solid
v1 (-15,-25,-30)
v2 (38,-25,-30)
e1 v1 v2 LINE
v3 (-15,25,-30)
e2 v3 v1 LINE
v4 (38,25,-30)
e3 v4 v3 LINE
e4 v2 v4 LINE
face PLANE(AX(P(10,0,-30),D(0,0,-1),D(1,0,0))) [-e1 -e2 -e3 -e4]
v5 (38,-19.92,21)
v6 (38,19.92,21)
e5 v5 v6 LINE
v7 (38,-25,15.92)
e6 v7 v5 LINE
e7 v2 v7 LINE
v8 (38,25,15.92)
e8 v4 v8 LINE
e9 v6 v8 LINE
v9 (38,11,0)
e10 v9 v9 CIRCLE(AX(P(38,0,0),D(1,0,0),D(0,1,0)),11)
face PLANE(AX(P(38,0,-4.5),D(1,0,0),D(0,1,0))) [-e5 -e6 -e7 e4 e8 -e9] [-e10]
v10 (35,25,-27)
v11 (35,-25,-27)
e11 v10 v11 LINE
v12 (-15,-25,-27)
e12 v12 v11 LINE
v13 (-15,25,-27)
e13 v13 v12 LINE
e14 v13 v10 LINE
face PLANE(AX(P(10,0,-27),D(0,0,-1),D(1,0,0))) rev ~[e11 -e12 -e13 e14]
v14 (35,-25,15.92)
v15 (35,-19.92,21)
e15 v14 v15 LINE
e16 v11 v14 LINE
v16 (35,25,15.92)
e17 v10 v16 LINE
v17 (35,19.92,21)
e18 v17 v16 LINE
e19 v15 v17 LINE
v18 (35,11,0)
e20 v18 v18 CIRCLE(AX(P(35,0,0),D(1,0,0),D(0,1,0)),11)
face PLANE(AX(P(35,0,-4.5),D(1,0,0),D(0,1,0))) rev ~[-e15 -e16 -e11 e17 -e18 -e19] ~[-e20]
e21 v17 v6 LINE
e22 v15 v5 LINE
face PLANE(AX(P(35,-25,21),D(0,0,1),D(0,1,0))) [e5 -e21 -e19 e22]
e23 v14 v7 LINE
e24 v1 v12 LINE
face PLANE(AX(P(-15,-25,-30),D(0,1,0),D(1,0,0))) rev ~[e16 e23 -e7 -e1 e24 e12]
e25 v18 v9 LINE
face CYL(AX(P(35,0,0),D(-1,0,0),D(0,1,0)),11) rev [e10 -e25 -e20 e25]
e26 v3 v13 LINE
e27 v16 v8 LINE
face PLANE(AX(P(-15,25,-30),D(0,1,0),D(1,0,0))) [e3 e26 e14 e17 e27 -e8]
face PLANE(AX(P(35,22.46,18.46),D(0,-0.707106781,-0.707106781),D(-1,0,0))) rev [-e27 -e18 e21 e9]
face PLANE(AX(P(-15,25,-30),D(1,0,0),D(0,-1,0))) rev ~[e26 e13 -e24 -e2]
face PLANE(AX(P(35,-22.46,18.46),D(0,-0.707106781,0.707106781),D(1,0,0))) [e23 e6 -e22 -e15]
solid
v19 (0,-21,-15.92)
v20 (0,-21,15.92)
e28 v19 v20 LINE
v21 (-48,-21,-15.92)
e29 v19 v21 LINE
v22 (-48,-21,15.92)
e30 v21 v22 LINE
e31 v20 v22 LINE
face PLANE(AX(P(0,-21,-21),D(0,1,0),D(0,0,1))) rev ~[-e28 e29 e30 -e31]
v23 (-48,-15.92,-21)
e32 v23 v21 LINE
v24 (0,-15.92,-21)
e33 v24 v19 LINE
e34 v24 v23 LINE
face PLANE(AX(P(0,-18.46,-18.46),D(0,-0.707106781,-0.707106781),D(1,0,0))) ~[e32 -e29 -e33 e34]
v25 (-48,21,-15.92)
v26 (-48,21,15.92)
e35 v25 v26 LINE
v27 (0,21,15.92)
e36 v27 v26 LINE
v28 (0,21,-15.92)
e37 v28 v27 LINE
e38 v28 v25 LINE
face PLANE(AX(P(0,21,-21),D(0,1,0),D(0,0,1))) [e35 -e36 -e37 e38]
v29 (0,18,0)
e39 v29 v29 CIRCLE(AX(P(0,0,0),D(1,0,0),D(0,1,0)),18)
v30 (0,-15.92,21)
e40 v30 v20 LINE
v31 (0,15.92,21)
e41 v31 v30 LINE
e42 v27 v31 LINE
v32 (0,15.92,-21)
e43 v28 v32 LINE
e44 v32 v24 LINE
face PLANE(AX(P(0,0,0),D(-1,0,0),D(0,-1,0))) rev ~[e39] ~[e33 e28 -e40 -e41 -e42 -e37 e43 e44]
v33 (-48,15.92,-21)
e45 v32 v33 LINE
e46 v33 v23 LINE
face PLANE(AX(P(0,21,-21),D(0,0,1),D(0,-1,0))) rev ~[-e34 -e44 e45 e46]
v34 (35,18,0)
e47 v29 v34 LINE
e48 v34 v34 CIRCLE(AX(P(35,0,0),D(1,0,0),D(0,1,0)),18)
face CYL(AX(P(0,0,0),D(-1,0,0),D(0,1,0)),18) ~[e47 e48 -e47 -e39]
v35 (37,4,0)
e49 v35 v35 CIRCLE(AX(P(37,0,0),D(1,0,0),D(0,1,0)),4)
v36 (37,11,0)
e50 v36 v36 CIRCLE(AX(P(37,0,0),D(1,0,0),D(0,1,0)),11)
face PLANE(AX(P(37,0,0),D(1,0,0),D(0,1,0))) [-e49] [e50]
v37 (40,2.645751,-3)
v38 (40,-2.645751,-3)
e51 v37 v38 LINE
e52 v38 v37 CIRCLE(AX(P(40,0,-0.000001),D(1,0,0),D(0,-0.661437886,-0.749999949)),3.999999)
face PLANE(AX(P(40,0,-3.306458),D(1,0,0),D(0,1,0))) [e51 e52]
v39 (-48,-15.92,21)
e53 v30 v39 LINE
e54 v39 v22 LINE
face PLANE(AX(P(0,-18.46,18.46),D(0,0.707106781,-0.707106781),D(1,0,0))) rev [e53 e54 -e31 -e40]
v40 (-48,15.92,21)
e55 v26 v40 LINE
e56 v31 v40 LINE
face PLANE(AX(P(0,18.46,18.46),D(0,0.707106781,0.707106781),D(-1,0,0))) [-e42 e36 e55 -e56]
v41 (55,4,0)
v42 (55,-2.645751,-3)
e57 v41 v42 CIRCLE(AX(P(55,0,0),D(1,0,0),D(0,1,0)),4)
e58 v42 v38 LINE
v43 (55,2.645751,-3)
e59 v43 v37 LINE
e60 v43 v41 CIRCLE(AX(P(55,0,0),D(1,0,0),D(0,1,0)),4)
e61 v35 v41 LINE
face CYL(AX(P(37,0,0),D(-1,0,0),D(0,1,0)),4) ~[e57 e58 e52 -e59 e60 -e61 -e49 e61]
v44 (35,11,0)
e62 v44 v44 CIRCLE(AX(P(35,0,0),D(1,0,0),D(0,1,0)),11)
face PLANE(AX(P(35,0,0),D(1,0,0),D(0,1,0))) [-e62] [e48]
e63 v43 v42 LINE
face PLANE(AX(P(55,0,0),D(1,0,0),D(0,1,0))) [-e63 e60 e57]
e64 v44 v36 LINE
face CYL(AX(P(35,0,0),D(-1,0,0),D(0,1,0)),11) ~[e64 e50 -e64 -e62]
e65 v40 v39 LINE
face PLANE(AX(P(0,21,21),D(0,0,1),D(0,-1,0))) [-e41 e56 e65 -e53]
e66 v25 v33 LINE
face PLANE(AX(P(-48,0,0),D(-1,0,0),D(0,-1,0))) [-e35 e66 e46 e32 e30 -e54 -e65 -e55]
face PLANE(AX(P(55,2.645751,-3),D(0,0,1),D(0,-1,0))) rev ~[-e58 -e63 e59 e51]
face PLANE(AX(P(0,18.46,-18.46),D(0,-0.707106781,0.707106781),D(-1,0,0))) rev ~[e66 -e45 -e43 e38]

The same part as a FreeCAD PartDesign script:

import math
import FreeCAD as App
import Part
import Sketcher

V = App.Vector


def edges_at(feature, points):
    """Names of the edges that pass closest to the given points."""
    edges = feature.Shape.Edges
    near = lambda p: min(range(len(edges)), key=lambda i: edges[i].distToShape(Part.Vertex(*p))[0])
    return sorted({f"Edge{near(p) + 1}" for p in points})

doc = App.newDocument("Part")
params = doc.addObject("Spreadsheet::Sheet", "Params")
for row, (alias, value) in enumerate([
    ("sketch1_diameter", "36 mm"),
    ("pad1_length", "35 mm"),
    ("sketch2_width", "42 mm"),
    ("pad2_length", "48 mm"),
    ("chamfer_size", "5.08 mm"),
    ("sketch3_diameter", "22 mm"),
    ("pad3_length", "2 mm"),
    ("sketch4_diameter", "8 mm"),
    ("pad4_length", "18 mm"),
    ("sketch5_radius", "3.999999 mm"),
    ("pocket1_length", "15 mm"),
    ("sketch6_diameter", "22 mm"),
    ("sketch6_width", "50 mm"),
    ("sketch6_height", "51 mm"),
    ("pad5_length", "3 mm"),
    ("chamfer2_size", "5.08 mm"),
    ("sketch7_width", "50 mm"),
    ("pad6_length", "3 mm"),
], start=1):
    params.set(f"A{row}", alias)
    params.set(f"B{row}", "=" + value)
    params.setAlias(f"B{row}", alias)

body = doc.addObject("PartDesign::Body", "Body")

# Sketch on YZ plane
sketch1 = body.newObject("Sketcher::SketchObject", "Sketch")
sketch1.AttachmentSupport = (doc.getObject("YZ_Plane"), [""])
sketch1.MapMode = "FlatFace"
sketch1.addGeometry(Part.Circle(V(0, 0, 0), V(0, 0, 1), 18), False)
sketch1.addConstraint([
    Sketcher.Constraint("Coincident", 0, 3, -1, 1),
    Sketcher.Constraint("Diameter", 0, 36.0),
])
sketch1.setExpression("Constraints[1]", "Params.sketch1_diameter")
pad1 = body.newObject("PartDesign::Pad", "Pad")
pad1.Profile = sketch1
pad1.setExpression("Length", "Params.pad1_length")

# Sketch on YZ plane
sketch2 = body.newObject("Sketcher::SketchObject", "Sketch001")
sketch2.AttachmentSupport = (doc.getObject("YZ_Plane"), [""])
sketch2.MapMode = "FlatFace"
sketch2.addGeometry([
    Part.LineSegment(V(21, 21, 0), V(21, -21, 0)),
    Part.LineSegment(V(21, -21, 0), V(-21, -21, 0)),
    Part.LineSegment(V(-21, -21, 0), V(-21, 21, 0)),
    Part.LineSegment(V(-21, 21, 0), V(21, 21, 0)),
], False)
sketch2.addConstraint([
    Sketcher.Constraint("Coincident", 0, 2, 1, 1),
    Sketcher.Constraint("Coincident", 1, 2, 2, 1),
    Sketcher.Constraint("Coincident", 2, 2, 3, 1),
    Sketcher.Constraint("Coincident", 3, 2, 0, 1),
    Sketcher.Constraint("Vertical", 0),
    Sketcher.Constraint("Horizontal", 1),
    Sketcher.Constraint("Vertical", 2),
    Sketcher.Constraint("Horizontal", 3),
    Sketcher.Constraint("Symmetric", 0, 2, 2, 2, -1, 1),
    Sketcher.Constraint("Equal", 3, 0),
    Sketcher.Constraint("DistanceX", 1, 2, 1, 1, 42.0),
])
sketch2.setExpression("Constraints[10]", "Params.sketch2_width")
pad2 = body.newObject("PartDesign::Pad", "Pad001")
pad2.Profile = sketch2
pad2.setExpression("Length", "Params.pad2_length")
pad2.Reversed = True
doc.recompute()

chamfer = body.newObject("PartDesign::Chamfer", "Chamfer")
chamfer.Base = (pad2, edges_at(pad2, [
    (-24, -21, 21),
    (-24, 21, 21),
    (-24, 21, -21),
    (-24, -21, -21),
]))
chamfer.setExpression("Size", "Params.chamfer_size")

# Sketch on YZ plane
sketch3 = body.newObject("Sketcher::SketchObject", "Sketch002")
sketch3.AttachmentSupport = (doc.getObject("YZ_Plane"), [""])
sketch3.MapMode = "FlatFace"
sketch3.AttachmentOffset = App.Placement(V(0, 0, 35), App.Rotation())
sketch3.addGeometry(Part.Circle(V(0, 0, 0), V(0, 0, 1), 11), False)
sketch3.addConstraint([
    Sketcher.Constraint("Coincident", 0, 3, -1, 1),
    Sketcher.Constraint("Diameter", 0, 22.0),
])
sketch3.setExpression("Constraints[1]", "Params.sketch3_diameter")
pad3 = body.newObject("PartDesign::Pad", "Pad002")
pad3.Profile = sketch3
pad3.setExpression("Length", "Params.pad3_length")

# Sketch on YZ plane
sketch4 = body.newObject("Sketcher::SketchObject", "Sketch003")
sketch4.AttachmentSupport = (doc.getObject("YZ_Plane"), [""])
sketch4.MapMode = "FlatFace"
sketch4.AttachmentOffset = App.Placement(V(0, 0, 37), App.Rotation())
sketch4.addGeometry(Part.Circle(V(0, 0, 0), V(0, 0, 1), 4), False)
sketch4.addConstraint([
    Sketcher.Constraint("Coincident", 0, 3, -1, 1),
    Sketcher.Constraint("Diameter", 0, 8.0),
])
sketch4.setExpression("Constraints[1]", "Params.sketch4_diameter")
pad4 = body.newObject("PartDesign::Pad", "Pad003")
pad4.Profile = sketch4
pad4.setExpression("Length", "Params.pad4_length")

# Sketch on YZ plane
sketch5 = body.newObject("Sketcher::SketchObject", "Sketch004")
sketch5.AttachmentSupport = (doc.getObject("YZ_Plane"), [""])
sketch5.MapMode = "FlatFace"
sketch5.AttachmentOffset = App.Placement(V(0, 0, 55), App.Rotation())
sketch5.addGeometry([
    Part.LineSegment(V(2.6, -3, 0), V(-2.6, -3, 0)),
    Part.ArcOfCircle(Part.Circle(V(0, 0, 0), V(0, 0, 1), 4), math.radians(-131), math.radians(-49)),
], False)
sketch5.addConstraint([
    Sketcher.Constraint("Coincident", 0, 1, 1, 2),
    Sketcher.Constraint("Coincident", 1, 1, 0, 2),
    Sketcher.Constraint("Horizontal", 0),
    Sketcher.Constraint("Coincident", 1, 3, -1, 1),
    Sketcher.Constraint("Radius", 1, 3.999999),
    Sketcher.Constraint("DistanceY", 0, 1, -1, 1, 3.0),
])
sketch5.setExpression("Constraints[4]", "Params.sketch5_radius")
pocket1 = body.newObject("PartDesign::Pocket", "Pocket")
pocket1.Profile = sketch5
pocket1.setExpression("Length", "Params.pocket1_length")
body2 = doc.addObject("PartDesign::Body", "Body001")

# Sketch on YZ plane
sketch6 = body2.newObject("Sketcher::SketchObject", "Sketch005")
sketch6.AttachmentSupport = (doc.getObject("YZ_Plane001"), [""])
sketch6.MapMode = "FlatFace"
sketch6.AttachmentOffset = App.Placement(V(0, 0, 35), App.Rotation())
sketch6.addGeometry([
    Part.LineSegment(V(-25, 21, 0), V(-25, -30, 0)),  # 0
    Part.LineSegment(V(-25, -30, 0), V(25, -30, 0)),  # 1
    Part.LineSegment(V(25, -30, 0), V(25, 21, 0)),  # 2
    Part.LineSegment(V(25, 21, 0), V(-25, 21, 0)),  # 3
    Part.Circle(V(0, 0, 0), V(0, 0, 1), 11),  # 4
], False)
sketch6.addConstraint([
    Sketcher.Constraint("Coincident", 0, 2, 1, 1),
    Sketcher.Constraint("Coincident", 1, 2, 2, 1),
    Sketcher.Constraint("Coincident", 2, 2, 3, 1),
    Sketcher.Constraint("Coincident", 3, 2, 0, 1),
    Sketcher.Constraint("Vertical", 0),
    Sketcher.Constraint("Horizontal", 1),
    Sketcher.Constraint("Vertical", 2),
    Sketcher.Constraint("Horizontal", 3),
    Sketcher.Constraint("Coincident", 4, 3, -1, 1),
    Sketcher.Constraint("Diameter", 4, 22.0),
    Sketcher.Constraint("DistanceX", 1, 1, 1, 2, 50.0),
    Sketcher.Constraint("DistanceY", 0, 2, 0, 1, 51.0),
    Sketcher.Constraint("DistanceX", 0, 2, -1, 1, 25.0),
    Sketcher.Constraint("DistanceY", 0, 2, -1, 1, 30.0),
])
sketch6.setExpression("Constraints[9]", "Params.sketch6_diameter")
sketch6.setExpression("Constraints[10]", "Params.sketch6_width")
sketch6.setExpression("Constraints[11]", "Params.sketch6_height")
pad5 = body2.newObject("PartDesign::Pad", "Pad004")
pad5.Profile = sketch6
pad5.setExpression("Length", "Params.pad5_length")
doc.recompute()

chamfer2 = body2.newObject("PartDesign::Chamfer", "Chamfer001")
chamfer2.Base = (pad5, edges_at(pad5, [(36.5, -25, 21), (36.5, 25, 21)]))
chamfer2.setExpression("Size", "Params.chamfer2_size")

# Sketch on XY plane
sketch7 = body2.newObject("Sketcher::SketchObject", "Sketch006")
sketch7.AttachmentSupport = (doc.getObject("XY_Plane001"), [""])
sketch7.MapMode = "FlatFace"
sketch7.AttachmentOffset = App.Placement(V(0, 0, -30), App.Rotation())
sketch7.addGeometry([
    Part.LineSegment(V(-15, -25, 0), V(-15, 25, 0)),
    Part.LineSegment(V(-15, 25, 0), V(35, 25, 0)),
    Part.LineSegment(V(35, 25, 0), V(35, -25, 0)),
    Part.LineSegment(V(35, -25, 0), V(-15, -25, 0)),
], False)
sketch7.addConstraint([
    Sketcher.Constraint("Coincident", 0, 2, 1, 1),
    Sketcher.Constraint("Coincident", 1, 2, 2, 1),
    Sketcher.Constraint("Coincident", 2, 2, 3, 1),
    Sketcher.Constraint("Coincident", 3, 2, 0, 1),
    Sketcher.Constraint("Vertical", 0),
    Sketcher.Constraint("Horizontal", 1),
    Sketcher.Constraint("Vertical", 2),
    Sketcher.Constraint("Horizontal", 3),
    Sketcher.Constraint("Equal", 3, 0),
    Sketcher.Constraint("DistanceX", 1, 1, 1, 2, 50.0),
    Sketcher.Constraint("DistanceX", 0, 2, -1, 1, 15.0),
    Sketcher.Constraint("DistanceY", -1, 1, 0, 2, 25.0),
])
sketch7.setExpression("Constraints[9]", "Params.sketch7_width")
pad6 = body2.newObject("PartDesign::Pad", "Pad005")
pad6.Profile = sketch7
pad6.setExpression("Length", "Params.pad6_length")

doc.recompute()
